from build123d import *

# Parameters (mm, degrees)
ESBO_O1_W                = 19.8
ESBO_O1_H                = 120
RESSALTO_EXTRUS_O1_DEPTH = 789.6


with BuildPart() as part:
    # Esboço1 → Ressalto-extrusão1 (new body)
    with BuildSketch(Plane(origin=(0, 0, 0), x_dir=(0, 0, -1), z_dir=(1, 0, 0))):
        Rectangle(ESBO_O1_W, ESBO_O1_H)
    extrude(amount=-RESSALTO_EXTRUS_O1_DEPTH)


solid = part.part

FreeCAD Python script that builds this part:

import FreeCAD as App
import Part
import Sketcher
from FreeCAD import Vector


def add_polygon(sketch, points):
    """Adds a closed chain of lines whose ends are joined by coincident constraints."""
    first, n = sketch.GeometryCount, len(points)
    for a, b in zip(points, points[1:] + points[:1]):
        sketch.addGeometry(Part.LineSegment(App.Vector(*a, 0), App.Vector(*b, 0)), False)
    for i in range(n):
        sketch.addConstraint(Sketcher.Constraint("Coincident", first + i, 2, first + (i + 1) % n, 1))

doc = App.newDocument("Part")
body = doc.addObject("PartDesign::Body", "Body")

# Sketch on YZ plane
sketch1 = body.newObject("Sketcher::SketchObject", "Sketch")
sketch1.AttachmentSupport = (doc.getObject("YZ_Plane"), [""])
sketch1.MapMode = "FlatFace"
add_polygon(sketch1, [(60, 10), (-60, 10), (-60, -10), (60, -10)])  # lines 0-3
sketch1.addConstraint([
    Sketcher.Constraint("Horizontal", 0),
    Sketcher.Constraint("Vertical", 1),
    Sketcher.Constraint("Horizontal", 2),
    Sketcher.Constraint("Vertical", 3),
    Sketcher.Constraint("Symmetric", 0, 2, 2, 2, -1, 1),
    Sketcher.Constraint("DistanceX", 0, 2, 0, 1, 120.0),
    Sketcher.Constraint("DistanceY", 1, 2, 1, 1, 19.8),
])
pad1 = body.newObject("PartDesign::Pad", "Pad")
pad1.Profile = sketch1
pad1.Length = 789.6
pad1.Reversed = True

doc.recompute()
